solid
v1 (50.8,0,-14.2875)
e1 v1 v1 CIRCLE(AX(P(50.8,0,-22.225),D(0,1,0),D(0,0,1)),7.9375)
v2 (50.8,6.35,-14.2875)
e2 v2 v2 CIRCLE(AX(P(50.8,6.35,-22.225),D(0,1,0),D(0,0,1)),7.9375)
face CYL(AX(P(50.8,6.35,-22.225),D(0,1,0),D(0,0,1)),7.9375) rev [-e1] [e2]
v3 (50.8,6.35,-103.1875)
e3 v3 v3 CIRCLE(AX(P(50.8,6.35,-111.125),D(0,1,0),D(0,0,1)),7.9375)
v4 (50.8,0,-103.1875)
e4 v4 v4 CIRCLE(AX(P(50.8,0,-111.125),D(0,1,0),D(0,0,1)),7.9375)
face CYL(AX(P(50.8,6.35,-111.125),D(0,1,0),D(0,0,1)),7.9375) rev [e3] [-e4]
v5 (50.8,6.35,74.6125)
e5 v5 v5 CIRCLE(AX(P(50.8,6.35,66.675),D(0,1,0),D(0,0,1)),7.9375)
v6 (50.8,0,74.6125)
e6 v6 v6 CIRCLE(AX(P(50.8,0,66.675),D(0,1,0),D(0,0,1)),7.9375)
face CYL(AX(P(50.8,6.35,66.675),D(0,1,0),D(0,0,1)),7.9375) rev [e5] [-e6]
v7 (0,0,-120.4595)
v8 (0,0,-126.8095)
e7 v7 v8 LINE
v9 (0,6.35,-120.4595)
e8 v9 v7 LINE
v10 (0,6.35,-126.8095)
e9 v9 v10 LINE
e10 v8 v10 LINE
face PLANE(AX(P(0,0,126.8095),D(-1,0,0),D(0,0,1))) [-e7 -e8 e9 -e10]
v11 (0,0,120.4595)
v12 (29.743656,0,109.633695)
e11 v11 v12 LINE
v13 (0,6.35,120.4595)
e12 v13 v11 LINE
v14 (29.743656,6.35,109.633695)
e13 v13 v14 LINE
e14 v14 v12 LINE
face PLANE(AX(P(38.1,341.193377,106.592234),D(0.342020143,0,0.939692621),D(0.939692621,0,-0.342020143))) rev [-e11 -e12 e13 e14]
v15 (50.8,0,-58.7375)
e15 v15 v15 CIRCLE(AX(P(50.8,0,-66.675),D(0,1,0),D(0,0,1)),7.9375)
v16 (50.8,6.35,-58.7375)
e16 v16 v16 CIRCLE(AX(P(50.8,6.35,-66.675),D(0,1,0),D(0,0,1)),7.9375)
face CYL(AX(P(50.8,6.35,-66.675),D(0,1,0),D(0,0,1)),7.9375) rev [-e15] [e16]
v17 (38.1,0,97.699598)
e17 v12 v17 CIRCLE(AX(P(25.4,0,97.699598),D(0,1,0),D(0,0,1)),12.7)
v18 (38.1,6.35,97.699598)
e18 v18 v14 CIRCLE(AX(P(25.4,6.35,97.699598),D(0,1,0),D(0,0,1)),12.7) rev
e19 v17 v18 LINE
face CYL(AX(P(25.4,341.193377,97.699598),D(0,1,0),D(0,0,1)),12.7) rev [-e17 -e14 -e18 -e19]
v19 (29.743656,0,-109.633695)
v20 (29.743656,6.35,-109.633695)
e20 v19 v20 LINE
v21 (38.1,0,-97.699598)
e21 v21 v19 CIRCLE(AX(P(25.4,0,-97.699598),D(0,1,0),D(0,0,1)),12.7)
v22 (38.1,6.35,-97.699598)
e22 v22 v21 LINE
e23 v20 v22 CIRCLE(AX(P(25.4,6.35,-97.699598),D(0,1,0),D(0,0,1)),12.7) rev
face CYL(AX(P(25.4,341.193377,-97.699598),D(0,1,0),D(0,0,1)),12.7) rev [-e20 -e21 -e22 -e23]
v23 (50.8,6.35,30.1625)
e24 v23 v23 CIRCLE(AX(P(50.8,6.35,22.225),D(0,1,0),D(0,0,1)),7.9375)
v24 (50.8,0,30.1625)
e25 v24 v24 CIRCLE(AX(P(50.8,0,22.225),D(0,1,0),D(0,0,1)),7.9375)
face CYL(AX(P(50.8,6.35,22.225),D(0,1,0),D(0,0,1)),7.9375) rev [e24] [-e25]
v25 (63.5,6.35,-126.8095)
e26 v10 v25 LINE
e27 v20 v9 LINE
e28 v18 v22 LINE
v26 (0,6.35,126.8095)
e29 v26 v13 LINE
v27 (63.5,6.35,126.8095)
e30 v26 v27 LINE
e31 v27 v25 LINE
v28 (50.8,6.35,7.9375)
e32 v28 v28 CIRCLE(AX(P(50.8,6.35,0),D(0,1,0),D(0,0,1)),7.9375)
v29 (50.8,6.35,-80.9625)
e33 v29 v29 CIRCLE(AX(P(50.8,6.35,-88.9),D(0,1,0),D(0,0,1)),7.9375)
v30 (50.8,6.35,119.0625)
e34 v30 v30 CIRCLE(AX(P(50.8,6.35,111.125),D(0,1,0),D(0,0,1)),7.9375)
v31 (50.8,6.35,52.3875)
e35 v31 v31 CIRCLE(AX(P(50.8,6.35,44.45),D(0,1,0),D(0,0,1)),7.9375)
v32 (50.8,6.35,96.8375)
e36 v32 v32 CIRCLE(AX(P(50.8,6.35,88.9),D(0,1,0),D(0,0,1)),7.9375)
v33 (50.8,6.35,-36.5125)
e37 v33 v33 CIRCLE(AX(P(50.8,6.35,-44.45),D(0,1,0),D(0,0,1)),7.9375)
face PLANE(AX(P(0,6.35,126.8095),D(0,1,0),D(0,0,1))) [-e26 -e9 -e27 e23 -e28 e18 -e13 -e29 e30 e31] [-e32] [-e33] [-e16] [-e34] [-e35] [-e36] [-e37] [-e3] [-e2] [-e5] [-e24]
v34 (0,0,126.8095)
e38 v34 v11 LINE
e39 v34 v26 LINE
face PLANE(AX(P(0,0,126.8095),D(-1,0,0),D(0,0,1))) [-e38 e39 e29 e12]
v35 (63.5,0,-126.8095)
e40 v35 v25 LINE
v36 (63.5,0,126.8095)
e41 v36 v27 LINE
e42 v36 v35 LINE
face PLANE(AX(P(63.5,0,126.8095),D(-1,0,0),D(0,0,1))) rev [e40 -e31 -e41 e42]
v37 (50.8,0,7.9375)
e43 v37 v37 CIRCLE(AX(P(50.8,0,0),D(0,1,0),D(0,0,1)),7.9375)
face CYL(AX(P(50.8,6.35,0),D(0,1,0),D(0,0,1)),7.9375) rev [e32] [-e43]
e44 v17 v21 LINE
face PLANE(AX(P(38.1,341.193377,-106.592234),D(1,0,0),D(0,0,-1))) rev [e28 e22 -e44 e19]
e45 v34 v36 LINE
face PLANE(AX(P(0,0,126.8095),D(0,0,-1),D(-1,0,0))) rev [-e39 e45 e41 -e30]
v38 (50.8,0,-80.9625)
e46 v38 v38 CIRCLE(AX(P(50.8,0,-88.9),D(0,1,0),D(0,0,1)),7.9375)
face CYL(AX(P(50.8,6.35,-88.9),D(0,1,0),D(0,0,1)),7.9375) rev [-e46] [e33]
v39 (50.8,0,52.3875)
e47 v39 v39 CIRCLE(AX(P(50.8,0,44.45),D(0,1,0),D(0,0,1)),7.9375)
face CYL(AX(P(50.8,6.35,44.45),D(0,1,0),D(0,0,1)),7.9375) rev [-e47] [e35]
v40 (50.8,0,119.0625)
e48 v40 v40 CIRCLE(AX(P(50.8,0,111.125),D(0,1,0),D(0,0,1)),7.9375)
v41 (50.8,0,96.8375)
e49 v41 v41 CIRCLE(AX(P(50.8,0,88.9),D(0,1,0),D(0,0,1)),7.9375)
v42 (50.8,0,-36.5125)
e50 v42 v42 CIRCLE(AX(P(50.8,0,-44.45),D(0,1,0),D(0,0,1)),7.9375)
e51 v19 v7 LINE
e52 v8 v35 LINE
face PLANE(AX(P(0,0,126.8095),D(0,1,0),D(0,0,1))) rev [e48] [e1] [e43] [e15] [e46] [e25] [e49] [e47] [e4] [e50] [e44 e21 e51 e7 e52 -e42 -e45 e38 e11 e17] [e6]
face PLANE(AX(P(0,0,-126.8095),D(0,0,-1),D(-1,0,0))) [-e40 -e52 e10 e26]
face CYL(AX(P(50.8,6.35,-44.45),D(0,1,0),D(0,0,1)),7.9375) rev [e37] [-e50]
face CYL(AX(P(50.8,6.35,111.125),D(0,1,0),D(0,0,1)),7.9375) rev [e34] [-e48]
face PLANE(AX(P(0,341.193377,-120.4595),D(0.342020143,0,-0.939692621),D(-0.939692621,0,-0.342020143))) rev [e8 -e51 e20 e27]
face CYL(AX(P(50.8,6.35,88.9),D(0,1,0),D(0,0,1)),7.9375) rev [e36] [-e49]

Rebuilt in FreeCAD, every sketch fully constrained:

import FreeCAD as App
import Part
import Sketcher
Q = App.Units.Quantity


def edges_at(feature, points):
    """Names of the edges that pass closest to the given points."""
    edges = feature.Shape.Edges
    near = lambda p: min(range(len(edges)), key=lambda i: edges[i].distToShape(Part.Vertex(*p))[0])
    return sorted({f"Edge{near(p) + 1}" for p in points})


def add_polygon(sketch, points):
    """Adds a closed chain of lines whose ends are joined by coincident constraints."""
    first, n = sketch.GeometryCount, len(points)
    for a, b in zip(points, points[1:] + points[:1]):
        sketch.addGeometry(Part.LineSegment(App.Vector(*a, 0), App.Vector(*b, 0)), False)
    for i in range(n):
        sketch.addConstraint(Sketcher.Constraint("Coincident", first + i, 2, first + (i + 1) % n, 1))

doc = App.newDocument("Part")
body = doc.addObject("PartDesign::Body", "Body")

# Sketch on XY plane
sketch1 = body.newObject("Sketcher::SketchObject", "Sketch")
sketch1.AttachmentSupport = (doc.getObject("XY_Plane"), [""])
sketch1.MapMode = "FlatFace"
add_polygon(sketch1, [(0, 6.35), (0, 0), (63.5, 0), (63.5, 6.35)])  # lines 0-3
sketch1.addConstraint(Sketcher.Constraint("Vertical", 0))
sketch1.addConstraint(Sketcher.Constraint("Horizontal", 1))
sketch1.addConstraint(Sketcher.Constraint("Vertical", 2))
sketch1.addConstraint(Sketcher.Constraint("Horizontal", 3))
sketch1.addConstraint(Sketcher.Constraint("Coincident", 0, 2, -1, 1))
sketch1.addConstraint(Sketcher.Constraint("DistanceX", 1, 1, 1, 2, Q("2.5 in")))
sketch1.addConstraint(Sketcher.Constraint("DistanceY", 0, 2, 0, 1, Q("0.25 in")))
pad1 = body.newObject("PartDesign::Pad", "Pad")
pad1.Profile = sketch1
pad1.Length = Q("9.985 in")
pad1.Midplane = True

# Sketch on XZ plane
sketch2 = body.newObject("Sketcher::SketchObject", "Sketch001")
sketch2.AttachmentSupport = (doc.getObject("XZ_Plane"), [""])
sketch2.MapMode = "FlatFace"
sketch2.AttachmentOffset = App.Placement(App.Vector(0, 0, -0.25 * 25.4), App.Rotation())
add_polygon(sketch2, [(0, -120.4595), (-489.189691, -298.509986), (-1530.359282, -298.509986), (-1530.359282, 298.509986), (-489.189691, 298.509986), (0, 120.4595), (38.1, 106.592234), (38.1, -106.592234)])  # lines 0-7
sketch2.addConstraint(Sketcher.Constraint("Horizontal", 1))
sketch2.addConstraint(Sketcher.Constraint("Vertical", 2))
sketch2.addConstraint(Sketcher.Constraint("Horizontal", 3))
sketch2.addConstraint(Sketcher.Constraint("Vertical", 6))
sketch2.addConstraint(Sketcher.Constraint("Symmetric", 4, 2, 7, 2, -1, 1))
sketch2.addConstraint(Sketcher.Constraint("Symmetric", 0, 2, 3, 2, -1))
sketch2.addConstraint(Sketcher.Constraint("PointOnObject", 4, 2, -2))
sketch2.addConstraint(Sketcher.Constraint("Parallel", 4, 5))
sketch2.addConstraint(Sketcher.Constraint("Parallel", 0, 7))
sketch2.addConstraint(Sketcher.Constraint("Angle", 0, Q("-160 deg")))
sketch2.addConstraint(Sketcher.Constraint("DistanceX", -1, 1, 5, 2, Q("1.5 in")))
sketch2.addConstraint(Sketcher.Constraint("DistanceY", 7, 2, 4, 2, Q("9.485 in")))
sketch2.addConstraint(Sketcher.Constraint("DistanceX", 1, 2, 1, 1, 1041.169591))
sketch2.addConstraint(Sketcher.Constraint("DistanceY", 2, 1, 2, 2, 597.019973))
pocket1 = body.newObject("PartDesign::Pocket", "Pocket")
pocket1.Profile = sketch2
pocket1.Type = "ThroughAll"
pocket1.Midplane = True
doc.recompute()

fillet = body.newObject("PartDesign::Fillet", "Fillet")
fillet.Base = (pocket1, edges_at(pocket1, [(38.1, 3.175, -106.592), (38.1, 3.175, 106.592)]))
fillet.Radius = Q("0.5 in")

# Sketch on YZ plane
sketch3 = body.newObject("Sketcher::SketchObject", "Sketch002")
sketch3.AttachmentSupport = (doc.getObject("YZ_Plane"), [""])
sketch3.MapMode = "FlatFace"
sketch3.AttachmentOffset = App.Placement(App.Vector(0, 0, 2 * 25.4), App.Rotation())
add_polygon(sketch3, [(-17.469331, 0), (6.35, 0), (6.35, 7.9375), (-12.7, 7.9375)])  # lines 0-3
sketch3.addConstraint(Sketcher.Constraint("Horizontal", 0))
sketch3.addConstraint(Sketcher.Constraint("Vertical", 1))
sketch3.addConstraint(Sketcher.Constraint("Horizontal", 2))
sketch3.addConstraint(Sketcher.Constraint("PointOnObject", 0, 2, -1))
sketch3.addConstraint(Sketcher.Constraint("Angle", 3, Q("-121 deg")))
sketch3.addConstraint(Sketcher.Constraint("DistanceX", 2, 2, 2, 1, Q("0.75 in")))
sketch3.addConstraint(Sketcher.Constraint("DistanceX", 2, 2, -1, 1, Q("0.5 in")))
sketch3.addConstraint(Sketcher.Constraint("DistanceY", 1, 1, 1, 2, Q("0.3125 in")))
groove = body.newObject("PartDesign::Groove", "Groove")
groove.Profile = sketch3
groove.ReferenceAxis = (sketch3, ["H_Axis"])
groove.Angle = 360
doc.recompute()

linearpattern = body.newObject("PartDesign::LinearPattern", "LinearPattern")
linearpattern.Originals = [groove]
linearpattern.Direction = (doc.getObject("Z_Axis"), [""])
linearpattern.Mode = "offset"
linearpattern.Offset = Q("0.875 in")
linearpattern.Occurrences = 6
linearpattern.Reversed = True
body.Tip = linearpattern

# Sketch on YZ plane
sketch4 = body.newObject("Sketcher::SketchObject", "Sketch003")
sketch4.AttachmentSupport = (doc.getObject("YZ_Plane"), [""])
sketch4.MapMode = "FlatFace"
sketch4.AttachmentOffset = App.Placement(App.Vector(0, 0, 2 * 25.4), App.Rotation())
add_polygon(sketch4, [(6.35, 22.225), (-17.469331, 22.225), (-12.7, 14.2875), (6.35, 14.2875)])  # lines 0-3
sketch4.addGeometry(Part.LineSegment(App.Vector(-17.469331, 22.225, 0), App.Vector(6.35, 22.225, 0)), True)  # axis
sketch4.addConstraint(Sketcher.Constraint("Horizontal", 0))
sketch4.addConstraint(Sketcher.Constraint("Horizontal", 2))
sketch4.addConstraint(Sketcher.Constraint("Vertical", 3))
sketch4.addConstraint(Sketcher.Constraint("Horizontal", 4))
sketch4.addConstraint(Sketcher.Constraint("Coincident", 4, 1, 0, 2))
sketch4.addConstraint(Sketcher.Constraint("Vertical", 2, 2, 4, 2))
sketch4.addConstraint(Sketcher.Constraint("Angle", 1, Q("-59 deg")))
sketch4.addConstraint(Sketcher.Constraint("DistanceX", 2, 1, 2, 2, Q("0.75 in")))
sketch4.addConstraint(Sketcher.Constraint("DistanceX", 1, 2, -1, 1, Q("0.5 in")))
sketch4.addConstraint(Sketcher.Constraint("DistanceY", 3, 1, 3, 2, Q("0.3125 in")))
sketch4.addConstraint(Sketcher.Constraint("DistanceY", -1, 1, 0, 2, Q("0.875 in")))
groove2 = body.newObject("PartDesign::Groove", "Groove001")
groove2.Profile = sketch4
groove2.ReferenceAxis = (sketch4, ["Axis0"])
groove2.Angle = 360

# Sketch on YZ plane
sketch5 = body.newObject("Sketcher::SketchObject", "Sketch004")
sketch5.AttachmentSupport = (doc.getObject("YZ_Plane"), [""])
sketch5.MapMode = "FlatFace"
sketch5.AttachmentOffset = App.Placement(App.Vector(0, 0, 2 * 25.4), App.Rotation())
add_polygon(sketch5, [(6.35, 44.45), (-17.469331, 44.45), (-12.7, 36.5125), (6.35, 36.5125)])  # lines 0-3
sketch5.addGeometry(Part.LineSegment(App.Vector(-17.469331, 44.45, 0), App.Vector(6.35, 44.45, 0)), True)  # axis
sketch5.addConstraint(Sketcher.Constraint("Horizontal", 0))
sketch5.addConstraint(Sketcher.Constraint("Horizontal", 2))
sketch5.addConstraint(Sketcher.Constraint("Vertical", 3))
sketch5.addConstraint(Sketcher.Constraint("Horizontal", 4))
sketch5.addConstraint(Sketcher.Constraint("Coincident", 4, 1, 0, 2))
sketch5.addConstraint(Sketcher.Constraint("Vertical", 2, 2, 4, 2))
sketch5.addConstraint(Sketcher.Constraint("Angle", 1, Q("-59 deg")))
sketch5.addConstraint(Sketcher.Constraint("DistanceX", 2, 1, 2, 2, Q("0.75 in")))
sketch5.addConstraint(Sketcher.Constraint("DistanceX", 1, 2, -1, 1, Q("0.5 in")))
sketch5.addConstraint(Sketcher.Constraint("DistanceY", 3, 1, 3, 2, Q("0.3125 in")))
sketch5.addConstraint(Sketcher.Constraint("DistanceY", -1, 1, 0, 2, Q("1.75 in")))
groove3 = body.newObject("PartDesign::Groove", "Groove002")
groove3.Profile = sketch5
groove3.ReferenceAxis = (sketch5, ["Axis0"])
groove3.Angle = 360

# Sketch on YZ plane
sketch6 = body.newObject("Sketcher::SketchObject", "Sketch005")
sketch6.AttachmentSupport = (doc.getObject("YZ_Plane"), [""])
sketch6.MapMode = "FlatFace"
sketch6.AttachmentOffset = App.Placement(App.Vector(0, 0, 2 * 25.4), App.Rotation())
add_polygon(sketch6, [(6.35, 66.675), (-17.469331, 66.675), (-12.7, 58.7375), (6.35, 58.7375)])  # lines 0-3
sketch6.addGeometry(Part.LineSegment(App.Vector(-17.469331, 66.675, 0), App.Vector(6.35, 66.675, 0)), True)  # axis
sketch6.addConstraint(Sketcher.Constraint("Horizontal", 0))
sketch6.addConstraint(Sketcher.Constraint("Horizontal", 2))
sketch6.addConstraint(Sketcher.Constraint("Vertical", 3))
sketch6.addConstraint(Sketcher.Constraint("Horizontal", 4))
sketch6.addConstraint(Sketcher.Constraint("Coincident", 4, 1, 0, 2))
sketch6.addConstraint(Sketcher.Constraint("Vertical", 2, 2, 4, 2))
sketch6.addConstraint(Sketcher.Constraint("Angle", 1, Q("-59 deg")))
sketch6.addConstraint(Sketcher.Constraint("DistanceX", 2, 1, 2, 2, Q("0.75 in")))
sketch6.addConstraint(Sketcher.Constraint("DistanceX", 1, 2, -1, 1, Q("0.5 in")))
sketch6.addConstraint(Sketcher.Constraint("DistanceY", 3, 1, 3, 2, Q("0.3125 in")))
sketch6.addConstraint(Sketcher.Constraint("DistanceY", -1, 1, 0, 2, Q("2.625 in")))
groove4 = body.newObject("PartDesign::Groove", "Groove003")
groove4.Profile = sketch6
groove4.ReferenceAxis = (sketch6, ["Axis0"])
groove4.Angle = 360

# Sketch on YZ plane
sketch7 = body.newObject("Sketcher::SketchObject", "Sketch006")
sketch7.AttachmentSupport = (doc.getObject("YZ_Plane"), [""])
sketch7.MapMode = "FlatFace"
sketch7.AttachmentOffset = App.Placement(App.Vector(0, 0, 2 * 25.4), App.Rotation())
add_polygon(sketch7, [(6.35, 88.9), (-17.469331, 88.9), (-12.7, 80.9625), (6.35, 80.9625)])  # lines 0-3
sketch7.addGeometry(Part.LineSegment(App.Vector(-17.469331, 88.9, 0), App.Vector(6.35, 88.9, 0)), True)  # axis
sketch7.addConstraint(Sketcher.Constraint("Horizontal", 0))
sketch7.addConstraint(Sketcher.Constraint("Horizontal", 2))
sketch7.addConstraint(Sketcher.Constraint("Vertical", 3))
sketch7.addConstraint(Sketcher.Constraint("Horizontal", 4))
sketch7.addConstraint(Sketcher.Constraint("Coincident", 4, 1, 0, 2))
sketch7.addConstraint(Sketcher.Constraint("Vertical", 2, 2, 4, 2))
sketch7.addConstraint(Sketcher.Constraint("Angle", 1, Q("-59 deg")))
sketch7.addConstraint(Sketcher.Constraint("DistanceX", 2, 1, 2, 2, Q("0.75 in")))
sketch7.addConstraint(Sketcher.Constraint("DistanceY", -1, 1, 0, 2, Q("3.5 in")))
sketch7.addConstraint(Sketcher.Constraint("DistanceX", 1, 2, -1, 1, Q("0.5 in")))
sketch7.addConstraint(Sketcher.Constraint("DistanceY", 3, 1, 3, 2, Q("0.3125 in")))
groove5 = body.newObject("PartDesign::Groove", "Groove004")
groove5.Profile = sketch7
groove5.ReferenceAxis = (sketch7, ["Axis0"])
groove5.Angle = 360

# Sketch on YZ plane
sketch8 = body.newObject("Sketcher::SketchObject", "Sketch007")
sketch8.AttachmentSupport = (doc.getObject("YZ_Plane"), [""])
sketch8.MapMode = "FlatFace"
sketch8.AttachmentOffset = App.Placement(App.Vector(0, 0, 2 * 25.4), App.Rotation())
add_polygon(sketch8, [(6.35, 111.125), (-17.469331, 111.125), (-12.7, 103.1875), (6.35, 103.1875)])  # lines 0-3
sketch8.addGeometry(Part.LineSegment(App.Vector(-17.469331, 111.125, 0), App.Vector(6.35, 111.125, 0)), True)  # axis
sketch8.addConstraint(Sketcher.Constraint("Horizontal", 0))
sketch8.addConstraint(Sketcher.Constraint("Horizontal", 2))
sketch8.addConstraint(Sketcher.Constraint("Vertical", 3))
sketch8.addConstraint(Sketcher.Constraint("Horizontal", 4))
sketch8.addConstraint(Sketcher.Constraint("Coincident", 4, 1, 0, 2))
sketch8.addConstraint(Sketcher.Constraint("Vertical", 2, 2, 4, 2))
sketch8.addConstraint(Sketcher.Constraint("Angle", 1, Q("-59 deg")))
sketch8.addConstraint(Sketcher.Constraint("DistanceX", 2, 1, 2, 2, Q("0.75 in")))
sketch8.addConstraint(Sketcher.Constraint("DistanceX", 1, 2, -1, 1, Q("0.5 in")))
sketch8.addConstraint(Sketcher.Constraint("DistanceY", 3, 1, 3, 2, Q("0.3125 in")))
sketch8.addConstraint(Sketcher.Constraint("DistanceY", -1, 1, 0, 2, Q("4.375 in")))
groove6 = body.newObject("PartDesign::Groove", "Groove005")
groove6.Profile = sketch8
groove6.ReferenceAxis = (sketch8, ["Axis0"])
groove6.Angle = 360

# Sketch on YZ plane
sketch9 = body.newObject("Sketcher::SketchObject", "Sketch008")
sketch9.AttachmentSupport = (doc.getObject("YZ_Plane"), [""])
sketch9.MapMode = "FlatFace"
sketch9.AttachmentOffset = App.Placement(App.Vector(0, 0, 2 * 25.4), App.Rotation())
add_polygon(sketch9, [(6.35, 0), (-17.469331, 0), (-12.7, -7.9375), (6.35, -7.9375)])  # lines 0-3
sketch9.addConstraint(Sketcher.Constraint("Horizontal", 0))
sketch9.addConstraint(Sketcher.Constraint("Horizontal", 2))
sketch9.addConstraint(Sketcher.Constraint("Vertical", 3))
sketch9.addConstraint(Sketcher.Constraint("PointOnObject", 0, 2, -1))
sketch9.addConstraint(Sketcher.Constraint("Angle", 1, Q("-59 deg")))
sketch9.addConstraint(Sketcher.Constraint("DistanceX", 2, 1, 2, 2, Q("0.75 in")))
sketch9.addConstraint(Sketcher.Constraint("DistanceX", 1, 2, -1, 1, Q("0.5 in")))
sketch9.addConstraint(Sketcher.Constraint("DistanceY", 3, 1, 3, 2, Q("0.3125 in")))
groove7 = body.newObject("PartDesign::Groove", "Groove006")
groove7.Profile = sketch9
groove7.ReferenceAxis = (sketch9, ["H_Axis"])
groove7.Angle = 360

doc.recompute()
